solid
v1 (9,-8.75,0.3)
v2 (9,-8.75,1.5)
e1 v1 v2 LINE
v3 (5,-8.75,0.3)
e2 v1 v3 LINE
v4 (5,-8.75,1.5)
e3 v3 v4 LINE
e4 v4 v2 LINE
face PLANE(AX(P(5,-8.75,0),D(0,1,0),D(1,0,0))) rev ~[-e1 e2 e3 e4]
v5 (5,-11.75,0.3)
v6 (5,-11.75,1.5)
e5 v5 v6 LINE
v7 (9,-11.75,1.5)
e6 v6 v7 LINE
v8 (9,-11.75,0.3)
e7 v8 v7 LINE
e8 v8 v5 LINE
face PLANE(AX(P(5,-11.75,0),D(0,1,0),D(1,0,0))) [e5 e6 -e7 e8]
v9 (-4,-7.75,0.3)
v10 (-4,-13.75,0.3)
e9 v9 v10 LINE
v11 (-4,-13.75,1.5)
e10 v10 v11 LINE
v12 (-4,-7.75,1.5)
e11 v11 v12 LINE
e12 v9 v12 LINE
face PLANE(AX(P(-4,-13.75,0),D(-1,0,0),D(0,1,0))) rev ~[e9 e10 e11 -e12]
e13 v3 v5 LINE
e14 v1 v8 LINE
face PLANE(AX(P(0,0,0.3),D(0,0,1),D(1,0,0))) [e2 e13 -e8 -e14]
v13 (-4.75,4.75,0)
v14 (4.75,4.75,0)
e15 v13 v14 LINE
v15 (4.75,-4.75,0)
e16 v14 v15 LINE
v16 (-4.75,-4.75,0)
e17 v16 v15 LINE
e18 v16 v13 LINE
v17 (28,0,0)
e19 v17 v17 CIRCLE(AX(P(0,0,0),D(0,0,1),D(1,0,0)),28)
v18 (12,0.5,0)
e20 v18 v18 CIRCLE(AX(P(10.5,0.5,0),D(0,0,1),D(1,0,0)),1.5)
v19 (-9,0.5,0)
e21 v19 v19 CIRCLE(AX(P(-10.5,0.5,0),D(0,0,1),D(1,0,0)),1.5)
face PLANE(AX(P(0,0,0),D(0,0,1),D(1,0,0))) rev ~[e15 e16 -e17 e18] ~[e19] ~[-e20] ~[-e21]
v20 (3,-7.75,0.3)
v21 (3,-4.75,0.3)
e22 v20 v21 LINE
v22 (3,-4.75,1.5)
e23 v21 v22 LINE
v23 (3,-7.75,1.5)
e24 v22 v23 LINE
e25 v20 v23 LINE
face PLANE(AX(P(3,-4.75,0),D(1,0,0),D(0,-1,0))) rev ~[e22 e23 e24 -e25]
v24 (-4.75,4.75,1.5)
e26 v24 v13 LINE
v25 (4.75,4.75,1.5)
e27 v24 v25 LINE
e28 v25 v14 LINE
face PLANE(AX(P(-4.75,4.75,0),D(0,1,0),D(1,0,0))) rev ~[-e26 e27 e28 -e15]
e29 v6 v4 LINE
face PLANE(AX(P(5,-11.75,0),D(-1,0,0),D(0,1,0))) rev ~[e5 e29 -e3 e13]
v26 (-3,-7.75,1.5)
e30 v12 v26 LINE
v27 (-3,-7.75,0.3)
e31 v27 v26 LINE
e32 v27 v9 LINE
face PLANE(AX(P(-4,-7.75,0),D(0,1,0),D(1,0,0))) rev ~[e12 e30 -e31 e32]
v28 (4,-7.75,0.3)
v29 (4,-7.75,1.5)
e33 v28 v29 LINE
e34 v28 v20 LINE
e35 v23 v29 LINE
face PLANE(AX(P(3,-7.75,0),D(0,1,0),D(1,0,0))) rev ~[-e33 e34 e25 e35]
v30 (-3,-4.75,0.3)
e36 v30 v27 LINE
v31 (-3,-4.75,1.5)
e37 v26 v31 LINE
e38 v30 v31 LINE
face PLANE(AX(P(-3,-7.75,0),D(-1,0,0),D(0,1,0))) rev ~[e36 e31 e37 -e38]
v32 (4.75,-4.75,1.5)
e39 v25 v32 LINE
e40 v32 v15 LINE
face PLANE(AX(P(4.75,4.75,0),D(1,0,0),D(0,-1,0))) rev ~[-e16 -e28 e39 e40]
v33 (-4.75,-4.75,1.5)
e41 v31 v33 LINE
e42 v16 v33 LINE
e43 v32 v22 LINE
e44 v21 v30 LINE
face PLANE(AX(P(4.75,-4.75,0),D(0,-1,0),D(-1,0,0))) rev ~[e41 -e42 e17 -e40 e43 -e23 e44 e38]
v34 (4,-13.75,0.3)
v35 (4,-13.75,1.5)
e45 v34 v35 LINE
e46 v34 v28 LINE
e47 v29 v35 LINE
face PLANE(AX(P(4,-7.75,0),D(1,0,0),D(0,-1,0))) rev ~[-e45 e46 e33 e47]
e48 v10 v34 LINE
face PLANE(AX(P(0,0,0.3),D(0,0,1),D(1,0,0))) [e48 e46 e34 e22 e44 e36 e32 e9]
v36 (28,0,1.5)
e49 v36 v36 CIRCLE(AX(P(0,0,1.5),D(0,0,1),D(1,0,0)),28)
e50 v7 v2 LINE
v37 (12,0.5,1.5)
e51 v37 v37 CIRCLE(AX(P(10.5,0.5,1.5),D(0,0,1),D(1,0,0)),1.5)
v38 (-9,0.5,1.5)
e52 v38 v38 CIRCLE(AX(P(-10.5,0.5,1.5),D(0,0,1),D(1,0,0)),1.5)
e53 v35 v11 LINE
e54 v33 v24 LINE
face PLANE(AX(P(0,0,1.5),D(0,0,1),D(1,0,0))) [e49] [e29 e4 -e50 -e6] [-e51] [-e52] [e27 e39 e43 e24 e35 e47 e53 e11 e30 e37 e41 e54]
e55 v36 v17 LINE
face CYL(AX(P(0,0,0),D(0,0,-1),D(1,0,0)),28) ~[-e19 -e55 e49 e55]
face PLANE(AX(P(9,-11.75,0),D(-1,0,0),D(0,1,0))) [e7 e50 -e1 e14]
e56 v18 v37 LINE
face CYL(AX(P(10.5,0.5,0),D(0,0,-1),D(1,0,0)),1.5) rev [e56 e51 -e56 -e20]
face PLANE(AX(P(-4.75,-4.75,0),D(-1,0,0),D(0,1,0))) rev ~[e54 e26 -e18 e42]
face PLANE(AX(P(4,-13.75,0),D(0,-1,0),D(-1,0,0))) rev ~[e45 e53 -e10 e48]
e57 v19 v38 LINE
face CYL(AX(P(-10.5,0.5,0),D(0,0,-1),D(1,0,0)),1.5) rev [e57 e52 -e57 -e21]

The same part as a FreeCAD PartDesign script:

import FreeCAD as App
import Part
import Sketcher
from FreeCAD import Vector

doc = App.newDocument("Part")
body = doc.addObject("PartDesign::Body", "Body")

# Sketch on XY plane
sketch1 = body.newObject("Sketcher::SketchObject", "Sketch")
sketch1.AttachmentSupport = (doc.getObject("XY_Plane"), [""])
sketch1.MapMode = "FlatFace"
sketch1.addGeometry([
    Part.Circle(Vector(0, 0, 0), Vector(0, 0, 1), 28),  # 0
    Part.Circle(Vector(-10.5, 0.5, 0), Vector(0, 0, 1), 1.5),  # 1
    Part.LineSegment(Vector(-4.8, -4.8, 0), Vector(-4.8, 4.8, 0)),  # 2
    Part.LineSegment(Vector(-4.8, 4.8, 0), Vector(4.8, 4.8, 0)),  # 3
    Part.LineSegment(Vector(4.8, 4.8, 0), Vector(4.8, -4.8, 0)),  # 4
    Part.LineSegment(Vector(4.8, -4.8, 0), Vector(-4.8, -4.8, 0)),  # 5
    Part.Circle(Vector(10.5, 0.5, 0), Vector(0, 0, 1), 1.5),  # 6
], False)
sketch1.addConstraint([
    Sketcher.Constraint("Coincident", 2, 2, 3, 1),
    Sketcher.Constraint("Coincident", 3, 2, 4, 1),
    Sketcher.Constraint("Coincident", 4, 2, 5, 1),
    Sketcher.Constraint("Coincident", 5, 2, 2, 1),
    Sketcher.Constraint("Vertical", 2),
    Sketcher.Constraint("Horizontal", 3),
    Sketcher.Constraint("Vertical", 4),
    Sketcher.Constraint("Horizontal", 5),
    Sketcher.Constraint("Coincident", 0, 3, -1, 1),
    Sketcher.Constraint("Equal", 1, 6),
    Sketcher.Constraint("Symmetric", 2, 2, 4, 2, -1, 1),
    Sketcher.Constraint("Symmetric", 1, 3, 6, 3, -2),
    Sketcher.Constraint("Equal", 5, 2),
    Sketcher.Constraint("Diameter", 0, 56.0),
    Sketcher.Constraint("Diameter", 1, 3.0),
    Sketcher.Constraint("DistanceX", 3, 1, 3, 2, 9.5),
    Sketcher.Constraint("DistanceX", 1, 3, 6, 3, 21.0),
    Sketcher.Constraint("DistanceY", -1, 1, 1, 3, 0.5),
])
pad1 = body.newObject("PartDesign::Pad", "Pad")
pad1.Profile = sketch1
pad1.Length = 0.3

# Sketch on XY plane
sketch2 = body.newObject("Sketcher::SketchObject", "Sketch001")
sketch2.AttachmentSupport = (doc.getObject("XY_Plane"), [""])
sketch2.MapMode = "FlatFace"
sketch2.addGeometry([
    Part.Circle(Vector(0, 0, 0), Vector(0, 0, 1), 28),  # 0
    Part.LineSegment(Vector(9, -11.8, 0), Vector(5, -11.8, 0)),  # 1
    Part.LineSegment(Vector(5, -11.8, 0), Vector(5, -8.8, 0)),  # 2
    Part.LineSegment(Vector(5, -8.8, 0), Vector(9, -8.8, 0)),  # 3
    Part.LineSegment(Vector(9, -8.8, 0), Vector(9, -11.8, 0)),  # 4
    Part.Circle(Vector(-10.5, 0.5, 0), Vector(0, 0, 1), 1.5),  # 5
    Part.LineSegment(Vector(-3, -4.8, 0), Vector(-4.8, -4.8, 0)),  # 6
    Part.LineSegment(Vector(-4.8, -4.8, 0), Vector(-4.8, 4.8, 0)),  # 7
    Part.LineSegment(Vector(-4.8, 4.8, 0), Vector(4.8, 4.8, 0)),  # 8
    Part.LineSegment(Vector(4.8, 4.8, 0), Vector(4.8, -4.8, 0)),  # 9
    Part.LineSegment(Vector(4.8, -4.8, 0), Vector(3, -4.8, 0)),  # 10
    Part.LineSegment(Vector(3, -4.8, 0), Vector(3, -7.8, 0)),  # 11
    Part.LineSegment(Vector(3, -7.8, 0), Vector(4, -7.8, 0)),  # 12
    Part.LineSegment(Vector(4, -7.8, 0), Vector(4, -13.8, 0)),  # 13
    Part.LineSegment(Vector(4, -13.8, 0), Vector(-4, -13.8, 0)),  # 14
    Part.LineSegment(Vector(-4, -13.8, 0), Vector(-4, -7.8, 0)),  # 15
    Part.LineSegment(Vector(-4, -7.8, 0), Vector(-3, -7.8, 0)),  # 16
    Part.LineSegment(Vector(-3, -7.8, 0), Vector(-3, -4.8, 0)),  # 17
    Part.Circle(Vector(10.5, 0.5, 0), Vector(0, 0, 1), 1.5),  # 18
], False)
sketch2.addConstraint([
    Sketcher.Constraint("Coincident", 1, 2, 2, 1),
    Sketcher.Constraint("Coincident", 2, 2, 3, 1),
    Sketcher.Constraint("Coincident", 3, 2, 4, 1),
    Sketcher.Constraint("Coincident", 4, 2, 1, 1),
    Sketcher.Constraint("Coincident", 6, 2, 7, 1),
    Sketcher.Constraint("Coincident", 7, 2, 8, 1),
    Sketcher.Constraint("Coincident", 8, 2, 9, 1),
    Sketcher.Constraint("Coincident", 9, 2, 10, 1),
    Sketcher.Constraint("Coincident", 10, 2, 11, 1),
    Sketcher.Constraint("Coincident", 11, 2, 12, 1),
    Sketcher.Constraint("Coincident", 12, 2, 13, 1),
    Sketcher.Constraint("Coincident", 13, 2, 14, 1),
    Sketcher.Constraint("Coincident", 14, 2, 15, 1),
    Sketcher.Constraint("Coincident", 15, 2, 16, 1),
    Sketcher.Constraint("Coincident", 16, 2, 17, 1),
    Sketcher.Constraint("Coincident", 17, 2, 6, 1),
    Sketcher.Constraint("Horizontal", 1),
    Sketcher.Constraint("Vertical", 2),
    Sketcher.Constraint("Horizontal", 3),
    Sketcher.Constraint("Vertical", 4),
    Sketcher.Constraint("Horizontal", 6),
    Sketcher.Constraint("Vertical", 7),
    Sketcher.Constraint("Horizontal", 8),
    Sketcher.Constraint("Vertical", 9),
    Sketcher.Constraint("Horizontal", 10),
    Sketcher.Constraint("Vertical", 11),
    Sketcher.Constraint("Horizontal", 12),
    Sketcher.Constraint("Vertical", 13),
    Sketcher.Constraint("Horizontal", 14),
    Sketcher.Constraint("Vertical", 15),
    Sketcher.Constraint("Horizontal", 16),
    Sketcher.Constraint("Vertical", 17),
    Sketcher.Constraint("Coincident", 0, 3, -1, 1),
    Sketcher.Constraint("Equal", 5, 18),
    Sketcher.Constraint("Symmetric", 6, 2, 8, 2, -1, 1),
    Sketcher.Constraint("Symmetric", 5, 3, 18, 3, -2),
    Sketcher.Constraint("Symmetric", 12, 2, 15, 2, -2),
    Sketcher.Constraint("Symmetric", 10, 2, 17, 2, -2),
    Sketcher.Constraint("Equal", 8, 7),
    Sketcher.Constraint("Equal", 4, 11),
    Sketcher.Constraint("Diameter", 0, 56.0),
    Sketcher.Constraint("Diameter", 5, 3.0),
    Sketcher.Constraint("DistanceX", 1, 2, 1, 1, 4.0),
    Sketcher.Constraint("DistanceX", 12, 1, 12, 2, 1.0),
    Sketcher.Constraint("DistanceX", 14, 2, 14, 1, 8.0),
    Sketcher.Constraint("DistanceY", 2, 1, 2, 2, 3.0),
    Sketcher.Constraint("DistanceY", 13, 2, 13, 1, 6.0),
    Sketcher.Constraint("DistanceX", 8, 1, 8, 2, 9.5),
    Sketcher.Constraint("DistanceX", -1, 1, 1, 2, 5.0),
    Sketcher.Constraint("DistanceX", 5, 3, 18, 3, 21.0),
    Sketcher.Constraint("DistanceY", 2, 2, 6, 2, 4.0),
    Sketcher.Constraint("DistanceY", -1, 1, 5, 3, 0.5),
])
pad2 = body.newObject("PartDesign::Pad", "Pad001")
pad2.Profile = sketch2
pad2.Length = 1.5

doc.recompute()
